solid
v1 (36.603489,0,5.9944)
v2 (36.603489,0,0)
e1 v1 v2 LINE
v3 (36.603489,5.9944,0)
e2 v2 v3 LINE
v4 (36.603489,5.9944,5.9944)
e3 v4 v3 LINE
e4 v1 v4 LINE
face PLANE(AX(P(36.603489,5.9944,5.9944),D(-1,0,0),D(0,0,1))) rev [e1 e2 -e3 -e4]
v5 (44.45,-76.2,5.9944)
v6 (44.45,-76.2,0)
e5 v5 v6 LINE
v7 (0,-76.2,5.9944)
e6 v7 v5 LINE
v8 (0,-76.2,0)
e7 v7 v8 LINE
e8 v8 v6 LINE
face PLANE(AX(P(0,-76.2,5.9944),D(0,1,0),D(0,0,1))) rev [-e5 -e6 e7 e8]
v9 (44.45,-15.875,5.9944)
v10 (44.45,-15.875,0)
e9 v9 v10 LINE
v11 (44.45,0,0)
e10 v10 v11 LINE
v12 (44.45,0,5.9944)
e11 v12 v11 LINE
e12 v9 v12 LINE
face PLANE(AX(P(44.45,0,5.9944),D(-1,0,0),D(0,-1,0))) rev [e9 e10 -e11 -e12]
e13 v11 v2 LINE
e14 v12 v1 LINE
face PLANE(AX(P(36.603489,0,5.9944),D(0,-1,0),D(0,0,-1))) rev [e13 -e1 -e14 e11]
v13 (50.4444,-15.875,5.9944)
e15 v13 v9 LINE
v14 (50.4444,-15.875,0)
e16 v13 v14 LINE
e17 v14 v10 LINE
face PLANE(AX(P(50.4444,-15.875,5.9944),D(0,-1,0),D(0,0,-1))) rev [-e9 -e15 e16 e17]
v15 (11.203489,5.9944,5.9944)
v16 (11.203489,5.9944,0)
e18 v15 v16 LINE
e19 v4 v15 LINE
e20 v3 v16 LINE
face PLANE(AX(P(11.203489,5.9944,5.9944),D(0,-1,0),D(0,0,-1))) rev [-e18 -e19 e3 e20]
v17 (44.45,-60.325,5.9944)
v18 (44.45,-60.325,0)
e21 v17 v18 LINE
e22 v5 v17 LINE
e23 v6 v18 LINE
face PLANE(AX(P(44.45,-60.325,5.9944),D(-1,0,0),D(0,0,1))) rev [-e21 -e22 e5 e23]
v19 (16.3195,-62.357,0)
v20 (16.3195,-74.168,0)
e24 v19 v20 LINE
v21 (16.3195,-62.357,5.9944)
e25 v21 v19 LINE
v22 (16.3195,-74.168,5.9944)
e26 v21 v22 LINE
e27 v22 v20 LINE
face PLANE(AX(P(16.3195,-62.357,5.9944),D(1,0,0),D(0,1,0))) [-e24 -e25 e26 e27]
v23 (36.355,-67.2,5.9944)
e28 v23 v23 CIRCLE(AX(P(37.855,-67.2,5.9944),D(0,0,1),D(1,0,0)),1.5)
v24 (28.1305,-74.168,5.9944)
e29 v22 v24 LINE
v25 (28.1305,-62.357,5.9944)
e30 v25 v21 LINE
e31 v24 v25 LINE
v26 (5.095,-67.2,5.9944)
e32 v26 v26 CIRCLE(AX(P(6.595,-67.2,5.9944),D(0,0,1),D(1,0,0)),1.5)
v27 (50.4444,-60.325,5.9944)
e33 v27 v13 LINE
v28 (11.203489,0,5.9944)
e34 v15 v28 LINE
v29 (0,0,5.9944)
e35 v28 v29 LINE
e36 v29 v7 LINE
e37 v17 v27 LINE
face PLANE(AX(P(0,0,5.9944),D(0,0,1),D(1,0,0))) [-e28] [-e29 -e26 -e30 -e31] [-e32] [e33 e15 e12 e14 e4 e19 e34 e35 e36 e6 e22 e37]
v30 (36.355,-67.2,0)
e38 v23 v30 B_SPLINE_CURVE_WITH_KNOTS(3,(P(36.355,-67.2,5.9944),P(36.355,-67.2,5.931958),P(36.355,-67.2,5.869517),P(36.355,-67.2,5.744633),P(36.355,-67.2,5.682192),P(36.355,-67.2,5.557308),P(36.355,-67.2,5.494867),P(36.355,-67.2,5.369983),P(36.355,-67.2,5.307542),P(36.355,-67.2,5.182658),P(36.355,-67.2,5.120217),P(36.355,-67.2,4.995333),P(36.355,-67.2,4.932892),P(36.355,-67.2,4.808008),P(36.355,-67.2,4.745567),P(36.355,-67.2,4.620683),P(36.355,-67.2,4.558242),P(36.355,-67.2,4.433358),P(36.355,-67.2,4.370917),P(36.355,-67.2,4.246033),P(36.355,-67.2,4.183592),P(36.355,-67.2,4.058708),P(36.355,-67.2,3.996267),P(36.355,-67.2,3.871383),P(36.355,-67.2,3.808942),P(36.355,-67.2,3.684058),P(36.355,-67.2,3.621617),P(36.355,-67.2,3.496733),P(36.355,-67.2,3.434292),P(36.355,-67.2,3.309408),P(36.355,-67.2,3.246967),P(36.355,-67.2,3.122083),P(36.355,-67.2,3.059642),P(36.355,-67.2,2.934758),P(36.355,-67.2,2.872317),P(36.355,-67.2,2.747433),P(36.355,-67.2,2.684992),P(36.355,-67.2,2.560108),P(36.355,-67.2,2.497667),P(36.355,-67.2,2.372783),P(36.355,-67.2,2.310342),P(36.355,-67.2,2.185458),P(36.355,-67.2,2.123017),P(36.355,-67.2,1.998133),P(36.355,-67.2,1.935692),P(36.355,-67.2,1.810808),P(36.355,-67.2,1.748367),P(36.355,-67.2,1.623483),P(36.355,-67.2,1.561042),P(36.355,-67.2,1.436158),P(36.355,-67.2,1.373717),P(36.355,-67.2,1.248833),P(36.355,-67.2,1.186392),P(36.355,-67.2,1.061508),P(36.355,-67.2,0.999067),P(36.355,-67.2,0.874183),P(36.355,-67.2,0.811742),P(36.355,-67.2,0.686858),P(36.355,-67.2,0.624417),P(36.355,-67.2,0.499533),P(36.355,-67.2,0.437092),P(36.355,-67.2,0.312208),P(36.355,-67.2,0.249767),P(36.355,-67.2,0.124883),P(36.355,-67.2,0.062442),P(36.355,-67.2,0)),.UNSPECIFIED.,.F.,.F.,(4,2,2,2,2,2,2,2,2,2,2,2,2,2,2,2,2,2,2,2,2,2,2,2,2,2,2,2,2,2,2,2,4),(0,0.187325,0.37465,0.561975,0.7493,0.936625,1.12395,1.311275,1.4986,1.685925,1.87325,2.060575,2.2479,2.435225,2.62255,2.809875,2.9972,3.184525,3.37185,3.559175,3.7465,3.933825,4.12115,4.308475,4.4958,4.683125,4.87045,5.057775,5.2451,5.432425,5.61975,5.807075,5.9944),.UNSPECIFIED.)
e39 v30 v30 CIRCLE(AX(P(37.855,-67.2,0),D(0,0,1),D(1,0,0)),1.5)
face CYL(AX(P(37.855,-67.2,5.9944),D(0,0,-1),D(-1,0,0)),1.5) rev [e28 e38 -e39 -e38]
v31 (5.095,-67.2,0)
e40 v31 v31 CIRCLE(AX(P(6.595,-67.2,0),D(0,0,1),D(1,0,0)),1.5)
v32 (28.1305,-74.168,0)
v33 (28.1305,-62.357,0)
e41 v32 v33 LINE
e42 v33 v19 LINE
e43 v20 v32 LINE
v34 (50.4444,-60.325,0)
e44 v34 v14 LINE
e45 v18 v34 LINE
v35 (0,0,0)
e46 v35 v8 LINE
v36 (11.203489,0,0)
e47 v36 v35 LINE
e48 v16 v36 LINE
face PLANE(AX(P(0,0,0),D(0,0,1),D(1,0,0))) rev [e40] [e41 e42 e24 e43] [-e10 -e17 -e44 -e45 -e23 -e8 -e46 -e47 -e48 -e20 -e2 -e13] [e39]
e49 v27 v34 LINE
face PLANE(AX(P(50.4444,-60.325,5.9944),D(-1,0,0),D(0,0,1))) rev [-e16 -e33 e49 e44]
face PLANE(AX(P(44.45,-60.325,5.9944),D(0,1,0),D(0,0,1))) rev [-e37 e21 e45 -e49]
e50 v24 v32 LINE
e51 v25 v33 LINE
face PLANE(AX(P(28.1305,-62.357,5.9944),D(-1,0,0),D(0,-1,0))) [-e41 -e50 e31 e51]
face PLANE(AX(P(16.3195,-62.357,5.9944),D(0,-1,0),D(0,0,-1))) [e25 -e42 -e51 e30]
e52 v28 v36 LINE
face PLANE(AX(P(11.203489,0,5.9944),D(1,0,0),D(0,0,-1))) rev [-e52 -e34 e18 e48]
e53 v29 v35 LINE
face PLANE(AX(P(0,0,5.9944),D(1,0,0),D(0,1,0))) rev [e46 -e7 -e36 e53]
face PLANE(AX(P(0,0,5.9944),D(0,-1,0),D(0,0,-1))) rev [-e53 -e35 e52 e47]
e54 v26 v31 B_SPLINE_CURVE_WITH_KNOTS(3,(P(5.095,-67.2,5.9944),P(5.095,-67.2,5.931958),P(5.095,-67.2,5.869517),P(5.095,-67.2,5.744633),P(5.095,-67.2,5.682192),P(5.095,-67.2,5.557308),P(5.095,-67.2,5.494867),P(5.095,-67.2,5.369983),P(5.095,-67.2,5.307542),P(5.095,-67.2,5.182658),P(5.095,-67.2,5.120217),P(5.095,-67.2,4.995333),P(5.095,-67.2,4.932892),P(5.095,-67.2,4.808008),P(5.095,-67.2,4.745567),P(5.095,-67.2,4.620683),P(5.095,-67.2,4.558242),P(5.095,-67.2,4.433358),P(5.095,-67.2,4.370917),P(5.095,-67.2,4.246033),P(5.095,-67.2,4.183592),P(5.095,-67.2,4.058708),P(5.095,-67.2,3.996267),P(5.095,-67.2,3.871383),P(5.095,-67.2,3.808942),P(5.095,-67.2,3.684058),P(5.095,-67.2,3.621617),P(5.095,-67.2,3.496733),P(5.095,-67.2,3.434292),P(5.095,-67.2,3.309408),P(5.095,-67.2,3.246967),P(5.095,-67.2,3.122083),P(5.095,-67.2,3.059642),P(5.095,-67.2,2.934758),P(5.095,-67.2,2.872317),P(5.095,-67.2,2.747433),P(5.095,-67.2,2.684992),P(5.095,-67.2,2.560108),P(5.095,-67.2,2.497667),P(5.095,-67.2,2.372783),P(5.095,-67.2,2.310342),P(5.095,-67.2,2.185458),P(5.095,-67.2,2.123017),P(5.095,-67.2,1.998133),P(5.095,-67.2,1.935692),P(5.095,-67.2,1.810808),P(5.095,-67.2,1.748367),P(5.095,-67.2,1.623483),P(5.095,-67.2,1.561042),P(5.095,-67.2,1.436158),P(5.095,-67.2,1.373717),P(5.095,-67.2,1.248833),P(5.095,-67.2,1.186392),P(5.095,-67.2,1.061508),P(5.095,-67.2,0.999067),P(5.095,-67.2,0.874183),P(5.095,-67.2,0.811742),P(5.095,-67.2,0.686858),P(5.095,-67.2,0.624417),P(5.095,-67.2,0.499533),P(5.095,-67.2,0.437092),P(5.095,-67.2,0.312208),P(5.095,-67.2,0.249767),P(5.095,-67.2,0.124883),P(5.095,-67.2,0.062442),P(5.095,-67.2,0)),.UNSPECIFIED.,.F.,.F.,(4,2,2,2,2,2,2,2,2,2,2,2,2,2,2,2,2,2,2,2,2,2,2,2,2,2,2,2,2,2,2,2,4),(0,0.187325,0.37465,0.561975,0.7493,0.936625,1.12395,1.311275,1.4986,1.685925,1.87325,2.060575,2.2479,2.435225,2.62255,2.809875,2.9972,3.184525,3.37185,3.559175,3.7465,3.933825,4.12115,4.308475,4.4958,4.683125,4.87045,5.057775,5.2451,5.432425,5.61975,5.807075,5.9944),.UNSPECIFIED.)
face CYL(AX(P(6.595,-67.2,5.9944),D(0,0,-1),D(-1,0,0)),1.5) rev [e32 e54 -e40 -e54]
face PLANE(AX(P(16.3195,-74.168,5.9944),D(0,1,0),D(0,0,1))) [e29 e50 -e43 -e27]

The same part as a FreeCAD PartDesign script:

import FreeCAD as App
import Part
import Sketcher
from FreeCAD import Vector
Q = App.Units.Quantity

doc = App.newDocument("Part")
body = doc.addObject("PartDesign::Body", "Body")

# Sketch on XY plane
sketch1 = body.newObject("Sketcher::SketchObject", "Sketch")
sketch1.AttachmentSupport = (doc.getObject("XY_Plane"), [""])
sketch1.MapMode = "FlatFace"
sketch1.addGeometry([
    Part.LineSegment(Vector(44.45, -60.325, 0), Vector(50.4444, -60.325, 0)),  # 0
    Part.LineSegment(Vector(50.4444, -60.325, 0), Vector(50.4444, -15.875, 0)),  # 1
    Part.LineSegment(Vector(50.4444, -15.875, 0), Vector(44.45, -15.875, 0)),  # 2
    Part.LineSegment(Vector(44.45, -15.875, 0), Vector(44.45, 0, 0)),  # 3
    Part.LineSegment(Vector(44.45, 0, 0), Vector(36.603489, 0, 0)),  # 4
    Part.LineSegment(Vector(36.603489, 0, 0), Vector(36.603489, 5.9944, 0)),  # 5
    Part.LineSegment(Vector(36.603489, 5.9944, 0), Vector(11.203489, 5.9944, 0)),  # 6
    Part.LineSegment(Vector(11.203489, 5.9944, 0), Vector(11.203489, 0, 0)),  # 7
    Part.LineSegment(Vector(11.203489, 0, 0), Vector(0, 0, 0)),  # 8
    Part.LineSegment(Vector(0, 0, 0), Vector(0, -76.2, 0)),  # 9
    Part.LineSegment(Vector(0, -76.2, 0), Vector(44.45, -76.2, 0)),  # 10
    Part.LineSegment(Vector(44.45, -76.2, 0), Vector(44.45, -60.325, 0)),  # 11
    Part.Circle(Vector(6.595, -67.2, 0), Vector(0, 0, 1), 1.5),  # 12
    Part.LineSegment(Vector(28.1305, -74.168, 0), Vector(16.3195, -74.168, 0)),  # 13
    Part.LineSegment(Vector(16.3195, -74.168, 0), Vector(16.3195, -62.357, 0)),  # 14
    Part.LineSegment(Vector(16.3195, -62.357, 0), Vector(28.1305, -62.357, 0)),  # 15
    Part.LineSegment(Vector(28.1305, -62.357, 0), Vector(28.1305, -74.168, 0)),  # 16
    Part.Circle(Vector(37.855, -67.2, 0), Vector(0, 0, 1), 1.5),  # 17
], False)
sketch1.addConstraint([
    Sketcher.Constraint("Coincident", 0, 2, 1, 1),
    Sketcher.Constraint("Coincident", 1, 2, 2, 1),
    Sketcher.Constraint("Coincident", 2, 2, 3, 1),
    Sketcher.Constraint("Coincident", 3, 2, 4, 1),
    Sketcher.Constraint("Coincident", 4, 2, 5, 1),
    Sketcher.Constraint("Coincident", 5, 2, 6, 1),
    Sketcher.Constraint("Coincident", 6, 2, 7, 1),
    Sketcher.Constraint("Coincident", 7, 2, 8, 1),
    Sketcher.Constraint("Coincident", 8, 2, 9, 1),
    Sketcher.Constraint("Coincident", 9, 2, 10, 1),
    Sketcher.Constraint("Coincident", 10, 2, 11, 1),
    Sketcher.Constraint("Coincident", 11, 2, 0, 1),
    Sketcher.Constraint("Coincident", 13, 2, 14, 1),
    Sketcher.Constraint("Coincident", 14, 2, 15, 1),
    Sketcher.Constraint("Coincident", 15, 2, 16, 1),
    Sketcher.Constraint("Coincident", 16, 2, 13, 1),
    Sketcher.Constraint("Horizontal", 0),
    Sketcher.Constraint("Vertical", 1),
    Sketcher.Constraint("Horizontal", 2),
    Sketcher.Constraint("Vertical", 3),
    Sketcher.Constraint("Horizontal", 4),
    Sketcher.Constraint("Vertical", 5),
    Sketcher.Constraint("Horizontal", 6),
    Sketcher.Constraint("Vertical", 7),
    Sketcher.Constraint("Horizontal", 8),
    Sketcher.Constraint("Vertical", 9),
    Sketcher.Constraint("Horizontal", 10),
    Sketcher.Constraint("Vertical", 11),
    Sketcher.Constraint("Horizontal", 13),
    Sketcher.Constraint("Vertical", 14),
    Sketcher.Constraint("Horizontal", 15),
    Sketcher.Constraint("Vertical", 16),
    Sketcher.Constraint("Coincident", 8, 2, -1, 1),
    Sketcher.Constraint("Equal", 12, 17),
    Sketcher.Constraint("PointOnObject", 3, 2, -1),
    Sketcher.Constraint("Horizontal", 12, 3, 17, 3),
    Sketcher.Constraint("Vertical", 3, 2, 10, 2),
    Sketcher.Constraint("Equal", 10, 1),
    Sketcher.Constraint("Equal", 2, 5),
    Sketcher.Constraint("Equal", 3, 11),
    Sketcher.Constraint("Equal", 15, 14),
    Sketcher.Constraint("DistanceX", 6, 2, 6, 1, Q("1 in")),
    Sketcher.Constraint("DistanceY", 9, 2, 9, 1, Q("3 in")),
    Sketcher.Constraint("DistanceX", 10, 1, 10, 2, Q("1.75 in")),
    Sketcher.Constraint("Diameter", 12, 3.0),
    Sketcher.Constraint("DistanceX", 0, 1, 0, 2, Q("0.236 in")),
    Sketcher.Constraint("DistanceX", 13, 2, 13, 1, Q("0.465 in")),
    Sketcher.Constraint("DistanceY", 13, 2, -1, 1, Q("2.92 in")),
    Sketcher.Constraint("DistanceX", -1, 1, 13, 2, Q("0.6425 in")),
    Sketcher.Constraint("DistanceX", 4, 2, 4, 1, 7.846511),
    Sketcher.Constraint("DistanceX", -1, 1, 12, 3, 6.595),
    Sketcher.Constraint("DistanceY", 12, 3, -1, 1, 67.2),
    Sketcher.Constraint("DistanceX", -1, 1, 17, 3, 37.855),
])
pad1 = body.newObject("PartDesign::Pad", "Pad")
pad1.Profile = sketch1
pad1.Length = Q("0.236 in")

doc.recompute()
